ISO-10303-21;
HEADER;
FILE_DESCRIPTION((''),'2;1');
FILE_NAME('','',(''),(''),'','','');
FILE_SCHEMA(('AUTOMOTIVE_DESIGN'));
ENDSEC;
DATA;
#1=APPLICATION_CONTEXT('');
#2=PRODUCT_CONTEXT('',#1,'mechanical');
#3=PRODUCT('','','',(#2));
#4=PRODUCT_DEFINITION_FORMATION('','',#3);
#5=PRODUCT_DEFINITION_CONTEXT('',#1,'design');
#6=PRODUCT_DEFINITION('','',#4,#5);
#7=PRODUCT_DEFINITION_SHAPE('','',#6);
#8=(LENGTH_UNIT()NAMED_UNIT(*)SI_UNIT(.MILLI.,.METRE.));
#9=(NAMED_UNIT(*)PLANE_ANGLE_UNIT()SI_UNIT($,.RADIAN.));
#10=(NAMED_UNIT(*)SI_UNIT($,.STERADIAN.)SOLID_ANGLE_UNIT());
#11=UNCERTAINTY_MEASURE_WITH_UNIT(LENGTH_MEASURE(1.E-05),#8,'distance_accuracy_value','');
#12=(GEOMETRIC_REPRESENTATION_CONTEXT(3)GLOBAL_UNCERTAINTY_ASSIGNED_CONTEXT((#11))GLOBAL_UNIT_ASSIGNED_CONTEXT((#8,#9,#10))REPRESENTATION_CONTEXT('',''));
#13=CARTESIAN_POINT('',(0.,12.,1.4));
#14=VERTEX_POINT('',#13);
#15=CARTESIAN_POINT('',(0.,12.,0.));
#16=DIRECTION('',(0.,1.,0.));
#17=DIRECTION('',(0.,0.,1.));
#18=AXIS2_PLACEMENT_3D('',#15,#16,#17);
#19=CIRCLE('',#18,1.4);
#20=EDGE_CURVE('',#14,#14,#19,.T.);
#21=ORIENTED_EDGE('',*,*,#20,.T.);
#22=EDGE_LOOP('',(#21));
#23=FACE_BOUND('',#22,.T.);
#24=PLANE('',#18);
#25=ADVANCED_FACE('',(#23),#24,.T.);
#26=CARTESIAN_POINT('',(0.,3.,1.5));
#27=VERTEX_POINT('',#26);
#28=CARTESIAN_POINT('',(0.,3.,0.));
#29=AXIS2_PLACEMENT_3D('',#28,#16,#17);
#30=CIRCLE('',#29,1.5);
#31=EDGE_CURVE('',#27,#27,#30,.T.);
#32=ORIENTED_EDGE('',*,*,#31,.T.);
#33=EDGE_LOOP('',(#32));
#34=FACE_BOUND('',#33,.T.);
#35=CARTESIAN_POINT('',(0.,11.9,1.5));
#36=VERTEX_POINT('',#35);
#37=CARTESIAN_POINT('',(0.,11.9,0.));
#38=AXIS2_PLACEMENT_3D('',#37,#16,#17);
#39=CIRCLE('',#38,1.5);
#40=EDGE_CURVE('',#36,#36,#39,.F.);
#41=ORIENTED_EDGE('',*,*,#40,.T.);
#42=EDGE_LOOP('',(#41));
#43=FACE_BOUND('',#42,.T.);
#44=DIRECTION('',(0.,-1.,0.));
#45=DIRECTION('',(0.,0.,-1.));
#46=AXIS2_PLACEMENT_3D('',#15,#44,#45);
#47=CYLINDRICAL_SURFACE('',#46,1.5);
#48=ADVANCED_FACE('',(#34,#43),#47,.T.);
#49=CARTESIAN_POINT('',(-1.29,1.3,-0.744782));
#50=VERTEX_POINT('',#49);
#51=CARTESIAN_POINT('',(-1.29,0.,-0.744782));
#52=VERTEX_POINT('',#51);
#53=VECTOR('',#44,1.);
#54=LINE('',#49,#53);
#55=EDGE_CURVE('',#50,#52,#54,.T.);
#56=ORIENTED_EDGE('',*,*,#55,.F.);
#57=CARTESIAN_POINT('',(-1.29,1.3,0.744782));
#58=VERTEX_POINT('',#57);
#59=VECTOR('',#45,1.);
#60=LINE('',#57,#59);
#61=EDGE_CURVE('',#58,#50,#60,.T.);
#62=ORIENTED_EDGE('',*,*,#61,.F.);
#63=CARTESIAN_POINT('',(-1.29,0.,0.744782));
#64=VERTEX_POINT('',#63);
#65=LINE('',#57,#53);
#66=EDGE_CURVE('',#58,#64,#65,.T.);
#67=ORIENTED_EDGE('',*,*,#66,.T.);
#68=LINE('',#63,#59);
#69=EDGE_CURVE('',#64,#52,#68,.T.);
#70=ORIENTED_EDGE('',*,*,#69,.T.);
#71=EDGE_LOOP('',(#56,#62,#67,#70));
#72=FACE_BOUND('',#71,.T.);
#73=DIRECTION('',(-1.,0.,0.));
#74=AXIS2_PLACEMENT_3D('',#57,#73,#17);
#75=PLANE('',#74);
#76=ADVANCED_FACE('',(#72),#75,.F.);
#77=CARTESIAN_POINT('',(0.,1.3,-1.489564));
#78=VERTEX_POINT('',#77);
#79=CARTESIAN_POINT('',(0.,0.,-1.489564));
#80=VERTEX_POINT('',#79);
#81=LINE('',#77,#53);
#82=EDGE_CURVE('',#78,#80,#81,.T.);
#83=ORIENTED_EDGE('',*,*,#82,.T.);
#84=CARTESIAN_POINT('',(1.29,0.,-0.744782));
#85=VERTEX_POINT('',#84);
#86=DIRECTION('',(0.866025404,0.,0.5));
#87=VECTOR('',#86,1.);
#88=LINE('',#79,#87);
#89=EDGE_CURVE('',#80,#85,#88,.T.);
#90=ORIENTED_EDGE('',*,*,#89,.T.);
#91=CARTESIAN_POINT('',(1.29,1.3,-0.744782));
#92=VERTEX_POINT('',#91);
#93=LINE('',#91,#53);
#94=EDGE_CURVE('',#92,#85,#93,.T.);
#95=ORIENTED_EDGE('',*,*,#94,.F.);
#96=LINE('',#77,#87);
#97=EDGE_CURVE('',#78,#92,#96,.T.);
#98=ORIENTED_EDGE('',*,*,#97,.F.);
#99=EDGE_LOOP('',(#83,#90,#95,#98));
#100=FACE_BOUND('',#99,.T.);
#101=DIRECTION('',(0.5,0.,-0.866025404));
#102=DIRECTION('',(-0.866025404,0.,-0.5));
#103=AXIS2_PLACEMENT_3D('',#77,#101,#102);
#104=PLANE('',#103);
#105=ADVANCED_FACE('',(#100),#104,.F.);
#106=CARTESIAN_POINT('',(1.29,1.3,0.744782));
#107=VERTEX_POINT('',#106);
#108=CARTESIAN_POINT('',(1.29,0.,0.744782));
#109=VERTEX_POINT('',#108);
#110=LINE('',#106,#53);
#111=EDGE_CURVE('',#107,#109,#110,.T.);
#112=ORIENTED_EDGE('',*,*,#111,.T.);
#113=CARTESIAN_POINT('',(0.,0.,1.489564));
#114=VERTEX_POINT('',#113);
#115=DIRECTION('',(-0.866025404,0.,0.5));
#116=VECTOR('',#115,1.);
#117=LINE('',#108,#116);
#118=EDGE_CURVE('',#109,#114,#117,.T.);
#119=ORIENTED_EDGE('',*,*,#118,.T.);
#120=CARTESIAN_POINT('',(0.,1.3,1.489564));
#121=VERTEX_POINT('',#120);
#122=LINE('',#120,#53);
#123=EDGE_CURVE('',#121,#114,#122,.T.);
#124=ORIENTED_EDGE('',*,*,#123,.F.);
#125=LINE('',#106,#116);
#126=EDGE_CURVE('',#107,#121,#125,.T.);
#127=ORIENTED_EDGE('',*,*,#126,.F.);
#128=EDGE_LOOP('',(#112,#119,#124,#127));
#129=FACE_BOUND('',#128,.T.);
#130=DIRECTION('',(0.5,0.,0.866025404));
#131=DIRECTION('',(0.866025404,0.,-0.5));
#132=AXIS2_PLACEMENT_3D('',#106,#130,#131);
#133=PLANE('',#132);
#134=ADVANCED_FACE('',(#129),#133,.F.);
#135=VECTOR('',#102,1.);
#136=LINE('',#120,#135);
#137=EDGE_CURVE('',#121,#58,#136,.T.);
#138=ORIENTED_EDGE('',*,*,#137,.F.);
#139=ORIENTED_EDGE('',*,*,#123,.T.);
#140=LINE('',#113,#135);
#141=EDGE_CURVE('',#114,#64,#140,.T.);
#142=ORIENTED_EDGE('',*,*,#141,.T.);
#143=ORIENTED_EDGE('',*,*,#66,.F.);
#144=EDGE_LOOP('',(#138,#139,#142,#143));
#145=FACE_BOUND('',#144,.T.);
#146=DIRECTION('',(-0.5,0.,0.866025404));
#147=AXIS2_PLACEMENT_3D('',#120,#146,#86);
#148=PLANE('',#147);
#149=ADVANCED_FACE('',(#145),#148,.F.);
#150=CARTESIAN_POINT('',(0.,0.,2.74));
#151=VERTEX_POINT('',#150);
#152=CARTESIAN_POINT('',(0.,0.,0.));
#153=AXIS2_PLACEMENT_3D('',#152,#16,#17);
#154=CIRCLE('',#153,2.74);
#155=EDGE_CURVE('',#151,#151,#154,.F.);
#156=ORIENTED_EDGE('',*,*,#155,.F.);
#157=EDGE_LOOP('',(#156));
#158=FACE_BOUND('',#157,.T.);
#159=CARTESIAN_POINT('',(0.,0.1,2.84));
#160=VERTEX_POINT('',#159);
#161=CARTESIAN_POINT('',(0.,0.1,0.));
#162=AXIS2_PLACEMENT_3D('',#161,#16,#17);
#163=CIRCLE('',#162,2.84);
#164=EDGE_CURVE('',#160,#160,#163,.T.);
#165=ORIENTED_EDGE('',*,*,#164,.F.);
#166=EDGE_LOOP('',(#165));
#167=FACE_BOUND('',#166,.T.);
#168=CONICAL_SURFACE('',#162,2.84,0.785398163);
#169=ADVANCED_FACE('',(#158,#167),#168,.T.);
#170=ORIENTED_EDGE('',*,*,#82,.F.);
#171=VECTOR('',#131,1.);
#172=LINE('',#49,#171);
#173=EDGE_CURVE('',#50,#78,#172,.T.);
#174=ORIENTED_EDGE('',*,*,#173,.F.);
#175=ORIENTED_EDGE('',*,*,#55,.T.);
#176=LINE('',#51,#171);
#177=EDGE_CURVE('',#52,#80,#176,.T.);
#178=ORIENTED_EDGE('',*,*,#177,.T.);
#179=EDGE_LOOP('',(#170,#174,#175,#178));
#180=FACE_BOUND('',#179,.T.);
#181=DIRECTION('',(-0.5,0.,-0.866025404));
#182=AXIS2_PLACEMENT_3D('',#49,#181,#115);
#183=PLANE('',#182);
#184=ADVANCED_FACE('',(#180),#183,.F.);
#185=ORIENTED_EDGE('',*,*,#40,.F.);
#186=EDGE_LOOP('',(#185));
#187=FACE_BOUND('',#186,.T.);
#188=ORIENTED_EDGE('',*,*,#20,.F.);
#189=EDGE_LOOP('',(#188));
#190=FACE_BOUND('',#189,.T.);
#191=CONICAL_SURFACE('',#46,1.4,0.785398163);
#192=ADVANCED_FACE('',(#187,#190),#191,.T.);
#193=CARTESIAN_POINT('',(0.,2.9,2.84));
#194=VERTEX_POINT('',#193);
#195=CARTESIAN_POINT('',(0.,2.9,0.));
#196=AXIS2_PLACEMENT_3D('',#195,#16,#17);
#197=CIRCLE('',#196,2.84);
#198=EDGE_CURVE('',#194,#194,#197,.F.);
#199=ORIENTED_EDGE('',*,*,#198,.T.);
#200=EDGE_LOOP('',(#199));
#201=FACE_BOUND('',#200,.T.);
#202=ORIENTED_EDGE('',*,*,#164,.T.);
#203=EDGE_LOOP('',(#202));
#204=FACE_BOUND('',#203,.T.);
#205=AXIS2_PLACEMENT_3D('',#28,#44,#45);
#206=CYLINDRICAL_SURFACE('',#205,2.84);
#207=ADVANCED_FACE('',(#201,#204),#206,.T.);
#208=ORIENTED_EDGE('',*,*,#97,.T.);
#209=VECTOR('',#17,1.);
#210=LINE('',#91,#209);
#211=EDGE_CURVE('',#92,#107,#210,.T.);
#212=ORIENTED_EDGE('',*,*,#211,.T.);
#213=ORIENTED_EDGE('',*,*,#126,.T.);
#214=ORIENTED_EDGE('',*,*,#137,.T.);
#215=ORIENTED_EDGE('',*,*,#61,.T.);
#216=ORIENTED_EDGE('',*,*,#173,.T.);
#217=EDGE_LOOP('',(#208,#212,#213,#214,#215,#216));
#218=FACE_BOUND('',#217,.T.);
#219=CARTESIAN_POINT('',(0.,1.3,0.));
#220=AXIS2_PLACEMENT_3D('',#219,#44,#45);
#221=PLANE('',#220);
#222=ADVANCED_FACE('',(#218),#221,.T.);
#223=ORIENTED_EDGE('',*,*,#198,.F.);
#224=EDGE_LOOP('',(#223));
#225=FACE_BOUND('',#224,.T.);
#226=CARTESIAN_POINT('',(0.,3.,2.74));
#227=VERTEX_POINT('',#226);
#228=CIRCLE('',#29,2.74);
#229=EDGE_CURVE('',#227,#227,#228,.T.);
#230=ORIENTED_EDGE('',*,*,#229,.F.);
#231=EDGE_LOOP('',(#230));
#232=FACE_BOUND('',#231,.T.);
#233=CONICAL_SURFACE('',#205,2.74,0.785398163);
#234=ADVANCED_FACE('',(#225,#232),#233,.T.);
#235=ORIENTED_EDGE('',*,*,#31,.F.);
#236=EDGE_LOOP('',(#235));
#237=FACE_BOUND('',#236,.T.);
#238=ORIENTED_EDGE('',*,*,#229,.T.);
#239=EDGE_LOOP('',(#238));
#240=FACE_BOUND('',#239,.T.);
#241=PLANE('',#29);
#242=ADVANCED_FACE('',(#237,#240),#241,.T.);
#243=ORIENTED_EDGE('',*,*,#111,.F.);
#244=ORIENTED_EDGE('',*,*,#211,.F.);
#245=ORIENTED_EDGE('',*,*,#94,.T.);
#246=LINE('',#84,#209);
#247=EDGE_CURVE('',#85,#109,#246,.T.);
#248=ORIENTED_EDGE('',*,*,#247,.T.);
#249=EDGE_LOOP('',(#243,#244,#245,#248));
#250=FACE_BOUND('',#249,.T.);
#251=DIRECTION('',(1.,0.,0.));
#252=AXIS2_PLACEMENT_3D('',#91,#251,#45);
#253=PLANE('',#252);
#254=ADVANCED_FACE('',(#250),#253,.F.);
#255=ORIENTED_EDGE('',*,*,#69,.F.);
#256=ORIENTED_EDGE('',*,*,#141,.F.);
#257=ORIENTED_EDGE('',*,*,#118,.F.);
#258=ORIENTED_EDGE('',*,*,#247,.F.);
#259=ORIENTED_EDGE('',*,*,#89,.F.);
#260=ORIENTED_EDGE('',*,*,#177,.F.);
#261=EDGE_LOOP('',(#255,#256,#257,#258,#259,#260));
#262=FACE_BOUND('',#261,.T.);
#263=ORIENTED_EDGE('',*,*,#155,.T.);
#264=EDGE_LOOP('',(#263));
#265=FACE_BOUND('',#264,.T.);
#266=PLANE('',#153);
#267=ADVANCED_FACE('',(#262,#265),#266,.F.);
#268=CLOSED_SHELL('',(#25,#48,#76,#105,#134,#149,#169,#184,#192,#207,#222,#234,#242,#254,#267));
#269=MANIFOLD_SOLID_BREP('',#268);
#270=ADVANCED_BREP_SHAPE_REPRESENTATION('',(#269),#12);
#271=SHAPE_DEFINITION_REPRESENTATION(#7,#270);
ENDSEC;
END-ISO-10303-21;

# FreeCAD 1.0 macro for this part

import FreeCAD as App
import Part
import Sketcher

V = App.Vector
Q = App.Units.Quantity


def edges_at(feature, points):
    """Names of the edges that pass closest to the given points."""
    edges = feature.Shape.Edges
    near = lambda p: min(range(len(edges)), key=lambda i: edges[i].distToShape(Part.Vertex(*p))[0])
    return sorted({f"Edge{near(p) + 1}" for p in points})


def add_polygon(sketch, points):
    """Adds a closed chain of lines whose ends are joined by coincident constraints."""
    first, n = sketch.GeometryCount, len(points)
    for a, b in zip(points, points[1:] + points[:1]):
        sketch.addGeometry(Part.LineSegment(App.Vector(*a, 0), App.Vector(*b, 0)), False)
    for i in range(n):
        sketch.addConstraint(Sketcher.Constraint("Coincident", first + i, 2, first + (i + 1) % n, 1))

doc = App.newDocument("Part")
params = doc.addObject("Spreadsheet::Sheet", "Params")
for row, (alias, value) in enumerate([
    ("sketch1_diameter", "5.68 mm"),
    ("pad1_length", "3 mm"),
    ("sketch2_diameter", "3 mm"),
    ("pad2_length", "9 mm"),
    ("pocket1_length", "1.3 mm"),
    ("chamfer_size", "0.1 mm"),
], start=1):
    params.set(f"A{row}", alias)
    params.set(f"B{row}", "=" + value)
    params.setAlias(f"B{row}", alias)

body = doc.addObject("PartDesign::Body", "Body")

sketch1 = doc.addObject("Sketcher::SketchObject", "Sketch")
body.addObject(sketch1)
sketch1.AttachmentSupport = (doc.XZ_Plane, [""])
sketch1.MapMode = "FlatFace"
sketch1.addGeometry(Part.Circle(V(0, 0, 0), V(0, 0, 1), 2.8), False)
sketch1.addConstraint([
    Sketcher.Constraint("Coincident", 0, 3, -1, 1),
    Sketcher.Constraint("Diameter", 0, Q("5.68 mm")),
])
sketch1.setExpression("Constraints[1]", "Params.sketch1_diameter")
pad1 = doc.addObject("PartDesign::Pad", "Pad")
body.addObject(pad1)
pad1.Profile = sketch1
pad1.setExpression("Length", "Params.pad1_length")
pad1.Reversed = True

sketch2 = doc.addObject("Sketcher::SketchObject", "Sketch001")
body.addObject(sketch2)
sketch2.AttachmentSupport = (doc.XZ_Plane, [""])
sketch2.MapMode = "FlatFace"
sketch2.AttachmentOffset = App.Placement(V(0, 0, -3), App.Rotation())
sketch2.addGeometry(Part.Circle(V(0, 0, 0), V(0, 0, 1), 1.5), False)
sketch2.addConstraint([
    Sketcher.Constraint("Coincident", 0, 3, -1, 1),
    Sketcher.Constraint("Diameter", 0, Q("3 mm")),
])
sketch2.setExpression("Constraints[1]", "Params.sketch2_diameter")
pad2 = doc.addObject("PartDesign::Pad", "Pad001")
body.addObject(pad2)
pad2.Profile = sketch2
pad2.setExpression("Length", "Params.pad2_length")
pad2.Reversed = True

sketch3 = doc.addObject("Sketcher::SketchObject", "Sketch002")
body.addObject(sketch3)
sketch3.AttachmentSupport = (doc.XZ_Plane, [""])
sketch3.MapMode = "FlatFace"
add_polygon(sketch3, [(1.3, -0.7), (1.3, 0.7), (0, 1.5), (-1.3, 0.7), (-1.3, -0.7), (0, -1.5)])
sketch3.addConstraint([
    Sketcher.Constraint("Vertical", 0),
    Sketcher.Constraint("Vertical", 3),
    Sketcher.Constraint("Symmetric", 0, 2, 3, 2, -1, 1),
    Sketcher.Constraint("Symmetric", 1, 2, 4, 2, -1, 1),
    Sketcher.Constraint("PointOnObject", 1, 2, -2),
    Sketcher.Constraint("Parallel", 2, 5),
    Sketcher.Constraint("Horizontal", 0, 2, 2, 2),
    Sketcher.Constraint("Angle", 1, Q("150 deg")),
    Sketcher.Constraint("DistanceX", -1, 1, 0, 2, Q("1.29 mm")),
    Sketcher.Constraint("DistanceY", 0, 1, 0, 2, Q("1.489564 mm")),
])
pocket1 = doc.addObject("PartDesign::Pocket", "Pocket")
body.addObject(pocket1)
pocket1.Profile = sketch3
pocket1.setExpression("Length", "Params.pocket1_length")
doc.recompute()

chamfer = doc.addObject("PartDesign::Chamfer", "Chamfer")
body.addObject(chamfer)
chamfer.Base = (pocket1, edges_at(pocket1, [(0, 0, -2.84), (0, 3, -2.84), (0, 12, -1.5)]))
chamfer.setExpression("Size", "Params.chamfer_size")

doc.recompute()
